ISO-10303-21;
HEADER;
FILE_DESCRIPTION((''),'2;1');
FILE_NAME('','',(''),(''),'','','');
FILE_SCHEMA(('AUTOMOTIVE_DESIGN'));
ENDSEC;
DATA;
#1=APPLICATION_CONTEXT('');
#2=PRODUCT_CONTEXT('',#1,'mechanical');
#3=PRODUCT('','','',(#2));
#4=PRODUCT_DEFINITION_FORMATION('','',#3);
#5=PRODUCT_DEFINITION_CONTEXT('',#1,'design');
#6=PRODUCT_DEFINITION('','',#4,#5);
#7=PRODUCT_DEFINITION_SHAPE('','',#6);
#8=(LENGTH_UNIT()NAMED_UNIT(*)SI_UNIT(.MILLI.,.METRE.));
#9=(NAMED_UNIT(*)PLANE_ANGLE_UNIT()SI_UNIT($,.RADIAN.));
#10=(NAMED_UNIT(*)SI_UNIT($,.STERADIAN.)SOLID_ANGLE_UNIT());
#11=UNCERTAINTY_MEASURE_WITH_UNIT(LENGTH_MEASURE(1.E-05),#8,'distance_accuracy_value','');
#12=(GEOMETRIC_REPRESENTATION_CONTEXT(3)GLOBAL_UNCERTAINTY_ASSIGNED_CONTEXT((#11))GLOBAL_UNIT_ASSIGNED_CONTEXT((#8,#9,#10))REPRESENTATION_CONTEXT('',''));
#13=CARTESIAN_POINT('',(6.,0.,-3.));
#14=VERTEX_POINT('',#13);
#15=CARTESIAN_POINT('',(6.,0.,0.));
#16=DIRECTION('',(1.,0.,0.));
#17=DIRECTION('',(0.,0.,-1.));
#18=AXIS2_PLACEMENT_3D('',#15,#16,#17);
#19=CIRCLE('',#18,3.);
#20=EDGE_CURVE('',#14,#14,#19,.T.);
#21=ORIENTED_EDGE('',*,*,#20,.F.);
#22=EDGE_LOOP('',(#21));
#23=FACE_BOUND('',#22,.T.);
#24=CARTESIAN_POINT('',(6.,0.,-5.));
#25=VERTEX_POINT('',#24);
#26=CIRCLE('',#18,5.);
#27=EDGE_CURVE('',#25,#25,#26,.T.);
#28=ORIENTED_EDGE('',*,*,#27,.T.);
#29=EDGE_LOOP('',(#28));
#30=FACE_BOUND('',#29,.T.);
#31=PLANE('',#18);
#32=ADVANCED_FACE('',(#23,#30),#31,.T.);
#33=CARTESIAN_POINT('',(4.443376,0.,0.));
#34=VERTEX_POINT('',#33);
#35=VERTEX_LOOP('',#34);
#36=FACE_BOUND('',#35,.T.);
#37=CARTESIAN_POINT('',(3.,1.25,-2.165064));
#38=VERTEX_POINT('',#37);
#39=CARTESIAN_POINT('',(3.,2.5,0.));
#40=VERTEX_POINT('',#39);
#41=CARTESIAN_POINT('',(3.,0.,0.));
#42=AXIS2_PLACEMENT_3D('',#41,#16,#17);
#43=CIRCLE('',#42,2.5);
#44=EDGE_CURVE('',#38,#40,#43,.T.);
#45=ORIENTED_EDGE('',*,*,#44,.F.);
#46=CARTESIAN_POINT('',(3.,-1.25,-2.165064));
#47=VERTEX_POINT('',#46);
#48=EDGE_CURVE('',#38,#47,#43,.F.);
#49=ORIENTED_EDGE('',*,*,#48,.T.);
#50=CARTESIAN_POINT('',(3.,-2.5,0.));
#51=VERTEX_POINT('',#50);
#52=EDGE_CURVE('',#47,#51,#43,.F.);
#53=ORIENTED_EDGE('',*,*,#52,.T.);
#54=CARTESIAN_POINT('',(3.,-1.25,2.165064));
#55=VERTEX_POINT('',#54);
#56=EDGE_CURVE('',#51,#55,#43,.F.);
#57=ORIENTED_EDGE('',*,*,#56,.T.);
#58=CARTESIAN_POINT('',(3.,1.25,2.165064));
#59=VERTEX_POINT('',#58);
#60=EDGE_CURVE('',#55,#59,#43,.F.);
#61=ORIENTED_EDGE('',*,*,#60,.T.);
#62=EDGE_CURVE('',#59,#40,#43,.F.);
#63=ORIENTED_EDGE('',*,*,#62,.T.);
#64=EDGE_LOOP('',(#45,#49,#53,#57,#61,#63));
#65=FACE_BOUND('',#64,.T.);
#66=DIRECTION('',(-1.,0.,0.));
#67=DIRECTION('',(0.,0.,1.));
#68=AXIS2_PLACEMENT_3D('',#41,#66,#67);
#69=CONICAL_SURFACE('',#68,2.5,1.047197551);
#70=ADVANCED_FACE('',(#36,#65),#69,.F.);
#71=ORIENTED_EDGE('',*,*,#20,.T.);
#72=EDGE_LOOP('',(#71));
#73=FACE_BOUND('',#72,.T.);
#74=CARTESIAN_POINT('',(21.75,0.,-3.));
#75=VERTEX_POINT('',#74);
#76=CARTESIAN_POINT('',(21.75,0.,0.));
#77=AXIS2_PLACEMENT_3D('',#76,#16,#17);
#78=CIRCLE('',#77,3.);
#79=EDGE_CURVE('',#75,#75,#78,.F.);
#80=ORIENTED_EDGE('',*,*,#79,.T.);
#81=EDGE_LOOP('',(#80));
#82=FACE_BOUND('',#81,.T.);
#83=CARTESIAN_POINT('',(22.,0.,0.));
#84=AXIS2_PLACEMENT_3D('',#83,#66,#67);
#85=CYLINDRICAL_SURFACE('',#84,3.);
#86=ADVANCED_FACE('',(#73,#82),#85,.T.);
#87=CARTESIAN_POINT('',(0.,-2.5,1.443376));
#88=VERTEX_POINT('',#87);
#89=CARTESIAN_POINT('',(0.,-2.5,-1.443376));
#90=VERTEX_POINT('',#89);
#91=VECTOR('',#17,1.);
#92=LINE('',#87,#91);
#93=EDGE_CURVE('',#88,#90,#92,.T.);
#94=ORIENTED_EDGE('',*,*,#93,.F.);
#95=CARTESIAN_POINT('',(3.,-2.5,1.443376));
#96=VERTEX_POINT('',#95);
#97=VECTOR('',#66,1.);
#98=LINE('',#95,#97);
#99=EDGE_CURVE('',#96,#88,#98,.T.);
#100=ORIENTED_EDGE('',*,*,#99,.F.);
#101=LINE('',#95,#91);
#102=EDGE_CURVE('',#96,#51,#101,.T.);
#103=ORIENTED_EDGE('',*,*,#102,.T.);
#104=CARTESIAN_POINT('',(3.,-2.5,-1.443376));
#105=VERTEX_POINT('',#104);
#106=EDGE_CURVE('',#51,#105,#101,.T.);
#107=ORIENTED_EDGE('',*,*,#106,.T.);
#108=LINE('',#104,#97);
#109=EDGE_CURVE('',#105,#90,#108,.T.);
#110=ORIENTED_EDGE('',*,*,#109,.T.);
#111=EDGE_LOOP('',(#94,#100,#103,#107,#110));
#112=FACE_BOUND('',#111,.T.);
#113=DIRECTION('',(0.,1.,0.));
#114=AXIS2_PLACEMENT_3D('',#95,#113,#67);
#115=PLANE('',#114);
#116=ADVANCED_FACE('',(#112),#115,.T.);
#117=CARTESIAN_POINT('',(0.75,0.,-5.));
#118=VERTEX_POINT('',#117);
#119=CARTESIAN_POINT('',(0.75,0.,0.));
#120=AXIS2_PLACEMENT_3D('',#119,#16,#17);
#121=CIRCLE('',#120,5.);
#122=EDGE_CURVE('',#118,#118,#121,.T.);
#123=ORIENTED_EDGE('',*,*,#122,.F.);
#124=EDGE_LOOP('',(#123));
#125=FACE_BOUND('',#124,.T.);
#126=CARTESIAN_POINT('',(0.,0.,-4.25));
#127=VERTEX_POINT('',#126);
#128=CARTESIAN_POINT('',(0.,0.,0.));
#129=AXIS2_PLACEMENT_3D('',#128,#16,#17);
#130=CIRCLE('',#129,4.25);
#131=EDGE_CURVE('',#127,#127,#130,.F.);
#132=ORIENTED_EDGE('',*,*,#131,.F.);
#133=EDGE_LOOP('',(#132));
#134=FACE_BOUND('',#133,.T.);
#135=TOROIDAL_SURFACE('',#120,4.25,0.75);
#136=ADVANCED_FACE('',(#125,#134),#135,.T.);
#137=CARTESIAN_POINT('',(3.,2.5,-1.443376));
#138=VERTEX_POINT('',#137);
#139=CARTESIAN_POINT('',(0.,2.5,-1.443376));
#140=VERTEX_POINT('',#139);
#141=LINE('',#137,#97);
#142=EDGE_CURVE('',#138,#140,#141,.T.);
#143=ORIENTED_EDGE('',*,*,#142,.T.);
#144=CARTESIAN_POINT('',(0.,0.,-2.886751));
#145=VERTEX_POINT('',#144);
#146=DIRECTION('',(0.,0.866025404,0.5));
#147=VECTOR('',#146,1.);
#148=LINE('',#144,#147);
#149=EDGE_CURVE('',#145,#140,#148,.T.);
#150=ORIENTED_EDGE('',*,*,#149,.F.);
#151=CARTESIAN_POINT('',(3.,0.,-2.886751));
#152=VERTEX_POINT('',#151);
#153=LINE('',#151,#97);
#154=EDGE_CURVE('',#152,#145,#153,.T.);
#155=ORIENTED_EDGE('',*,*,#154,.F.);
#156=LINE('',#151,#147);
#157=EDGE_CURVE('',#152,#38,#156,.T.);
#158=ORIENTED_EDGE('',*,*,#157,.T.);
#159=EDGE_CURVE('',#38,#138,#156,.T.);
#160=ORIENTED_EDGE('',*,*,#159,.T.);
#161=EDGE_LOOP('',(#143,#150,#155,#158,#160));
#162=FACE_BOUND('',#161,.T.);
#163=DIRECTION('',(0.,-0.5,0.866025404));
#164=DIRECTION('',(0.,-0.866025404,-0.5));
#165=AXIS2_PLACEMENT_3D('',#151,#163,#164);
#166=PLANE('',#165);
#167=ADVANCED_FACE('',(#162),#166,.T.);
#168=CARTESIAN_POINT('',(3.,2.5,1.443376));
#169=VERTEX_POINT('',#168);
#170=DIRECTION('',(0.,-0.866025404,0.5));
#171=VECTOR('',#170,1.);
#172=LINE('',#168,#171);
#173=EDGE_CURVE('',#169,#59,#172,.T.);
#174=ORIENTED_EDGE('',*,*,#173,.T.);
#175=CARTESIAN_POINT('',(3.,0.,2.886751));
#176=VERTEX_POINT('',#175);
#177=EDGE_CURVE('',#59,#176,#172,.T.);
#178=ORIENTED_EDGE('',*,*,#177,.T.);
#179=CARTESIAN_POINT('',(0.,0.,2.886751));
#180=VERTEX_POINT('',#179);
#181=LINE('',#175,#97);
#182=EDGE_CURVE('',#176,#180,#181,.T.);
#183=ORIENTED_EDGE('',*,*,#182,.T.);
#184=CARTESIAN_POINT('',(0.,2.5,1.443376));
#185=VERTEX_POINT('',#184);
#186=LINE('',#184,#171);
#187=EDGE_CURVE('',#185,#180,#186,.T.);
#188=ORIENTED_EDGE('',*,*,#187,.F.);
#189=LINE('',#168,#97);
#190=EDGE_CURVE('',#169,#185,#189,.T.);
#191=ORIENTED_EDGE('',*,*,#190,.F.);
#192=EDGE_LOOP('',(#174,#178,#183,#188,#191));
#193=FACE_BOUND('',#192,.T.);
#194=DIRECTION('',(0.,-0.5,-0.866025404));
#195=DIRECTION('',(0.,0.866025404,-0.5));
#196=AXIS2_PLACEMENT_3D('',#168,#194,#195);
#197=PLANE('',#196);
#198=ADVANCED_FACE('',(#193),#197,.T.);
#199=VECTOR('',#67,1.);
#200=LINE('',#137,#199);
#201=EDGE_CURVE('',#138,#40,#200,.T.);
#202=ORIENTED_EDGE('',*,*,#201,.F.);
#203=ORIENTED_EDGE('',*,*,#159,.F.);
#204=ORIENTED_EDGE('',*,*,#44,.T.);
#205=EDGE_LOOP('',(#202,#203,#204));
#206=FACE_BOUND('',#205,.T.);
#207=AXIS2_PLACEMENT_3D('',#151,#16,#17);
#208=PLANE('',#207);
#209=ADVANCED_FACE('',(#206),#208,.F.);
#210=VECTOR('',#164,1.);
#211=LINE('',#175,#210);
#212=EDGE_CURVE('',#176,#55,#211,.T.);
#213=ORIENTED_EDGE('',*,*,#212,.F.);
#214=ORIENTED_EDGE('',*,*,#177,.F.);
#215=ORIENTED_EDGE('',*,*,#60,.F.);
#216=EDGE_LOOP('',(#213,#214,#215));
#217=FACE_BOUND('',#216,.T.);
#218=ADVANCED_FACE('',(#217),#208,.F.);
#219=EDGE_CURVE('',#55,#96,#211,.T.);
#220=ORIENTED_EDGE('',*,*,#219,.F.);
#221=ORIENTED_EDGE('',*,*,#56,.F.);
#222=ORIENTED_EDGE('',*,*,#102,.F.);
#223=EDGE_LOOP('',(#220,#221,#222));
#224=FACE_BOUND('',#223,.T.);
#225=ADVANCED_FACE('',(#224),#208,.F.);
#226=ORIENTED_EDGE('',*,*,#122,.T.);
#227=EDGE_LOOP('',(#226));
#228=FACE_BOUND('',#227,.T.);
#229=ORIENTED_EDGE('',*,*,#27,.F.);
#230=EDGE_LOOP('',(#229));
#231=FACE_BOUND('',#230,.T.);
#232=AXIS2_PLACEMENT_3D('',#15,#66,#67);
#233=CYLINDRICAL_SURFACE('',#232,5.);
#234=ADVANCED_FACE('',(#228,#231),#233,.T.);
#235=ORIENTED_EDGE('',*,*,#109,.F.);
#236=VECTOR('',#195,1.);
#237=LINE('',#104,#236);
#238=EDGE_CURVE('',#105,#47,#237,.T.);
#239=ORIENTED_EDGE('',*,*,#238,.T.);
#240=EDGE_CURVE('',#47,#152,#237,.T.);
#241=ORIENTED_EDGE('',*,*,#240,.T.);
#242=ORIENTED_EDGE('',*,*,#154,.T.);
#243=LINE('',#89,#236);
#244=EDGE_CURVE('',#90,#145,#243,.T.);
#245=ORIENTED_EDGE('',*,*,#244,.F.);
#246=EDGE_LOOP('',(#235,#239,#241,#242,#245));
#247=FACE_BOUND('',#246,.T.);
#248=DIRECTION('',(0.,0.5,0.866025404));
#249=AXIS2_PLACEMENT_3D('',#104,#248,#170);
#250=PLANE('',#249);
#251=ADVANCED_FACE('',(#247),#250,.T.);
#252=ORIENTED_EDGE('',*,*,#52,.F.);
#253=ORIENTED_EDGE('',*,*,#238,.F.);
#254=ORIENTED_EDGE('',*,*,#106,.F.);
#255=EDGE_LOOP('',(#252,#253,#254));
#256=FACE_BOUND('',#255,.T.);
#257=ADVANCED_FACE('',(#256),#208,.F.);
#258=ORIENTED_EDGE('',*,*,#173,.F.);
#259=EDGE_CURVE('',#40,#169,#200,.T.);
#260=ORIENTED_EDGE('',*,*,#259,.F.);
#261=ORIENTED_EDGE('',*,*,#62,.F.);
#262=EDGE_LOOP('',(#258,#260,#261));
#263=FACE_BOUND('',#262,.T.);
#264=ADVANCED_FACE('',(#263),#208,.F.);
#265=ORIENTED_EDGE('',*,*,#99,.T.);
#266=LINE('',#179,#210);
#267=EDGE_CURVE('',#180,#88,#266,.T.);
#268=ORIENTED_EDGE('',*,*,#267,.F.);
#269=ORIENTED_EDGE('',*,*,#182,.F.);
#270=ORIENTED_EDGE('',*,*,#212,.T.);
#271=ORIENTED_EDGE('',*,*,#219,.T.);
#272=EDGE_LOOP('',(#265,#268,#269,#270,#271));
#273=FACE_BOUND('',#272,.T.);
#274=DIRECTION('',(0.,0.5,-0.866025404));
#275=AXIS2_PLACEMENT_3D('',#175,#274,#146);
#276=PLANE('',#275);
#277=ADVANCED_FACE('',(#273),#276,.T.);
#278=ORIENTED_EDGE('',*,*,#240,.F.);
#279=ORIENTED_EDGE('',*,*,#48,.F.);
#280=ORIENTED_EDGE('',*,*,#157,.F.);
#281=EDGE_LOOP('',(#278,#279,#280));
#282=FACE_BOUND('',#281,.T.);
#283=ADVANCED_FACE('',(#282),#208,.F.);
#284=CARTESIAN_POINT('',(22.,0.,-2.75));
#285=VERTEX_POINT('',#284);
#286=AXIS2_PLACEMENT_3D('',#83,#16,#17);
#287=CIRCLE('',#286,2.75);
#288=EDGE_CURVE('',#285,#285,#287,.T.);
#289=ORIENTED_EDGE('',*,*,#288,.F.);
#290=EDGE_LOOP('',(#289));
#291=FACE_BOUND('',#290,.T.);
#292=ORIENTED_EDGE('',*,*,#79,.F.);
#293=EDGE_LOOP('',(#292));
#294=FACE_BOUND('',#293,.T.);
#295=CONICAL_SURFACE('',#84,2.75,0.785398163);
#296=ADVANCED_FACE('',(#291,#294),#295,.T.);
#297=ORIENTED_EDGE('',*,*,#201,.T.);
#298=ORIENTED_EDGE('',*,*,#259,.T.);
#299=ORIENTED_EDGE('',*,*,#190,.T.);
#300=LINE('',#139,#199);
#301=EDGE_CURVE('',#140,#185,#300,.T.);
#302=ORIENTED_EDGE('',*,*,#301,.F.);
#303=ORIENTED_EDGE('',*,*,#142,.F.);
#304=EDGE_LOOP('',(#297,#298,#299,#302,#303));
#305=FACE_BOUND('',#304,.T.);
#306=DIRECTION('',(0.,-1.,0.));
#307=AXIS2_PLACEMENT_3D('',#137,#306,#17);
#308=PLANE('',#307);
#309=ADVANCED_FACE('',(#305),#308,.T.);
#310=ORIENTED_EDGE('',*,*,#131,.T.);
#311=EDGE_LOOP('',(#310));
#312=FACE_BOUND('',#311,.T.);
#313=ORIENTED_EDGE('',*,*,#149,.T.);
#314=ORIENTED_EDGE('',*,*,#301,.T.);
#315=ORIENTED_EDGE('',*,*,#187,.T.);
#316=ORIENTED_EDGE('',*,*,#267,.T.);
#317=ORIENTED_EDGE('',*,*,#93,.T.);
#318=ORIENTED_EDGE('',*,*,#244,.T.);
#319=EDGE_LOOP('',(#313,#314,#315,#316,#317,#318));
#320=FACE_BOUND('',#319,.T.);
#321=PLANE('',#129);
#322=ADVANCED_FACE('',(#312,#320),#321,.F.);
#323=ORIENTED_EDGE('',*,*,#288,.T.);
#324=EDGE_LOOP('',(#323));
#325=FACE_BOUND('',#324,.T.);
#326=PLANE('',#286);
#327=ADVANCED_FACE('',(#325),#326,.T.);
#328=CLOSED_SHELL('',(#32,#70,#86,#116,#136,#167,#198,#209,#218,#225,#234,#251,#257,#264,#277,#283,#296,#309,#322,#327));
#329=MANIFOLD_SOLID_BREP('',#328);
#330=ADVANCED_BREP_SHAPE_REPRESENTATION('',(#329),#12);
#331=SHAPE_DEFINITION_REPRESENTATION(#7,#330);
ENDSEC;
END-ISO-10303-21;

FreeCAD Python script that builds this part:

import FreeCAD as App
import Part
import Sketcher
from FreeCAD import Vector
Q = App.Units.Quantity


def edges_at(feature, points):
    """Names of the edges that pass closest to the given points."""
    edges = feature.Shape.Edges
    near = lambda p: min(range(len(edges)), key=lambda i: edges[i].distToShape(Part.Vertex(*p))[0])
    return sorted({f"Edge{near(p) + 1}" for p in points})

doc = App.newDocument("Part")
body = doc.addObject("PartDesign::Body", "Body")

# Sketch on YZ plane
sketch1 = body.newObject("Sketcher::SketchObject", "Sketch")
sketch1.AttachmentSupport = (doc.getObject("YZ_Plane"), [""])
sketch1.MapMode = "FlatFace"
sketch1.addGeometry(Part.Circle(Vector(0, 0, 0), Vector(0, 0, 1), 5), False)
sketch1.addConstraint(Sketcher.Constraint("Coincident", 0, 3, -1, 1))
sketch1.addConstraint(Sketcher.Constraint("Diameter", 0, 10.0))
pad1 = body.newObject("PartDesign::Pad", "Pad")
pad1.Profile = sketch1
pad1.Length = 6

# Sketch on YZ plane
sketch2 = body.newObject("Sketcher::SketchObject", "Sketch001")
sketch2.AttachmentSupport = (doc.getObject("YZ_Plane"), [""])
sketch2.MapMode = "FlatFace"
sketch2.AttachmentOffset = App.Placement(Vector(0, 0, 6), App.Rotation())
sketch2.addGeometry(Part.Circle(Vector(0, 0, 0), Vector(0, 0, 1), 3), False)
sketch2.addConstraint(Sketcher.Constraint("Coincident", 0, 3, -1, 1))
sketch2.addConstraint(Sketcher.Constraint("Diameter", 0, 6.0))
pad2 = body.newObject("PartDesign::Pad", "Pad001")
pad2.Profile = sketch2
pad2.Length = 16

# Sketch on YZ plane
sketch3 = body.newObject("Sketcher::SketchObject", "Sketch002")
sketch3.AttachmentSupport = (doc.getObject("YZ_Plane"), [""])
sketch3.MapMode = "FlatFace"
sketch3.addGeometry(Part.LineSegment(Vector(0, -2.9, 0), Vector(2.5, -1.4, 0)), False)
sketch3.addGeometry(Part.LineSegment(Vector(2.5, -1.4, 0), Vector(2.5, 1.4, 0)), False)
sketch3.addGeometry(Part.LineSegment(Vector(2.5, 1.4, 0), Vector(0, 2.9, 0)), False)
sketch3.addGeometry(Part.LineSegment(Vector(0, 2.9, 0), Vector(-2.5, 1.4, 0)), False)
sketch3.addGeometry(Part.LineSegment(Vector(-2.5, 1.4, 0), Vector(-2.5, -1.4, 0)), False)
sketch3.addGeometry(Part.LineSegment(Vector(-2.5, -1.4, 0), Vector(0, -2.9, 0)), False)
sketch3.addConstraint(Sketcher.Constraint("Coincident", 0, 2, 1, 1))
sketch3.addConstraint(Sketcher.Constraint("Coincident", 1, 2, 2, 1))
sketch3.addConstraint(Sketcher.Constraint("Coincident", 2, 2, 3, 1))
sketch3.addConstraint(Sketcher.Constraint("Coincident", 3, 2, 4, 1))
sketch3.addConstraint(Sketcher.Constraint("Coincident", 4, 2, 5, 1))
sketch3.addConstraint(Sketcher.Constraint("Coincident", 5, 2, 0, 1))
sketch3.addConstraint(Sketcher.Constraint("Vertical", 1))
sketch3.addConstraint(Sketcher.Constraint("Vertical", 4))
sketch3.addConstraint(Sketcher.Constraint("Symmetric", 0, 2, 3, 2, -1, 1))
sketch3.addConstraint(Sketcher.Constraint("Symmetric", 2, 2, 5, 2, -1, 1))
sketch3.addConstraint(Sketcher.Constraint("PointOnObject", 2, 2, -2))
sketch3.addConstraint(Sketcher.Constraint("Parallel", 2, 5))
sketch3.addConstraint(Sketcher.Constraint("Horizontal", 1, 2, 3, 2))
sketch3.addConstraint(Sketcher.Constraint("Angle", 0, Q("30 deg")))
sketch3.addConstraint(Sketcher.Constraint("DistanceX", 3, 2, 1, 2, 5.0))
sketch3.addConstraint(Sketcher.Constraint("DistanceY", 1, 1, 1, 2, 2.886751))
pocket1 = body.newObject("PartDesign::Pocket", "Pocket")
pocket1.Profile = sketch3
pocket1.Length = 3
pocket1.Reversed = True

# Sketch on XY plane
sketch4 = body.newObject("Sketcher::SketchObject", "Sketch003")
sketch4.AttachmentSupport = (doc.getObject("XY_Plane"), [""])
sketch4.MapMode = "FlatFace"
sketch4.addGeometry(Part.LineSegment(Vector(3, -2.5, 0), Vector(4.4, 0, 0)), False)
sketch4.addGeometry(Part.LineSegment(Vector(4.4, 0, 0), Vector(3, 0, 0)), False)
sketch4.addGeometry(Part.LineSegment(Vector(3, 0, 0), Vector(3, -2.5, 0)), False)
sketch4.addConstraint(Sketcher.Constraint("Coincident", 0, 2, 1, 1))
sketch4.addConstraint(Sketcher.Constraint("Coincident", 1, 2, 2, 1))
sketch4.addConstraint(Sketcher.Constraint("Coincident", 2, 2, 0, 1))
sketch4.addConstraint(Sketcher.Constraint("Horizontal", 1))
sketch4.addConstraint(Sketcher.Constraint("Vertical", 2))
sketch4.addConstraint(Sketcher.Constraint("PointOnObject", 0, 2, -1))
sketch4.addConstraint(Sketcher.Constraint("Angle", 0, Q("60 deg")))
sketch4.addConstraint(Sketcher.Constraint("DistanceY", 2, 2, 2, 1, 2.5))
sketch4.addConstraint(Sketcher.Constraint("DistanceX", -1, 1, 1, 2, 3.0))
groove = body.newObject("PartDesign::Groove", "Groove")
groove.Profile = sketch4
groove.ReferenceAxis = (sketch4, ["H_Axis"])
groove.Angle = 360
doc.recompute()

fillet = body.newObject("PartDesign::Fillet", "Fillet")
fillet.Base = (groove, edges_at(groove, [(0, 0, 5)]))
fillet.Radius = 0.75
doc.recompute()

chamfer = body.newObject("PartDesign::Chamfer", "Chamfer")
chamfer.Base = (fillet, edges_at(fillet, [(22, 0, 3)]))
chamfer.Size = 0.25

doc.recompute()
